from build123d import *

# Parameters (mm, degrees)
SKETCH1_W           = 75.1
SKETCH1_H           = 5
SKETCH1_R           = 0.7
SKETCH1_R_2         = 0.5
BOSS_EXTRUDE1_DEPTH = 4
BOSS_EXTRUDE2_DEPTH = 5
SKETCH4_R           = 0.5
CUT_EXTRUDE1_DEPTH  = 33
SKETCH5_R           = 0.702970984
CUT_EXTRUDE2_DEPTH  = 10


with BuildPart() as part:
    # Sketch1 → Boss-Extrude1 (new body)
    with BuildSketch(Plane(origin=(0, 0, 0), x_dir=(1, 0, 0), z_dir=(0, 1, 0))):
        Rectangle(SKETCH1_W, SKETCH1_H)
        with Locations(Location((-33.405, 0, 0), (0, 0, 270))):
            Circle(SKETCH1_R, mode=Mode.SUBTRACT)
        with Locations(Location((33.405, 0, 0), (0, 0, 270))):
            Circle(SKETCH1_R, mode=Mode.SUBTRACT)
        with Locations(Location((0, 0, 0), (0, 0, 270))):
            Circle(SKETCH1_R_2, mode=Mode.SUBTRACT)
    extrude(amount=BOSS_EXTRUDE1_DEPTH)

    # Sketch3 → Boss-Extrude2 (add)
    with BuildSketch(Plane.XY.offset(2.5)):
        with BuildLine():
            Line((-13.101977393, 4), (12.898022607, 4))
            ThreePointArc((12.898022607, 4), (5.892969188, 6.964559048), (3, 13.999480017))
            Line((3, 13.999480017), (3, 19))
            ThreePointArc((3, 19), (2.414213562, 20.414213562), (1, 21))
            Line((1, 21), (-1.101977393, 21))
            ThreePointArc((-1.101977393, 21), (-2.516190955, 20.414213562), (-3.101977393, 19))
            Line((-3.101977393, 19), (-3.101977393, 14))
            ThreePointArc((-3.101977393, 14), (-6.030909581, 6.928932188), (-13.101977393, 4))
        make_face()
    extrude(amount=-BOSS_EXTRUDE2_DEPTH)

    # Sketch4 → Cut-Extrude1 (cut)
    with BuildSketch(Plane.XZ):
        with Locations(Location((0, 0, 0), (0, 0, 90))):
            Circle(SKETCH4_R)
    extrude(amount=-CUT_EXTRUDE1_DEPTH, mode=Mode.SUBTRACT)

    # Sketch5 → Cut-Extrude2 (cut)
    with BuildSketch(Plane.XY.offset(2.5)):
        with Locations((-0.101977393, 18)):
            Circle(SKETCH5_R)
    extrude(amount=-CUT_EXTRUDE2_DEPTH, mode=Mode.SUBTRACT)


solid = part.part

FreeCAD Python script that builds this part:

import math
import FreeCAD as App
import Part
import Sketcher


def add_polygon(sketch, points):
    """Adds a closed chain of lines whose ends are joined by coincident constraints."""
    first, n = sketch.GeometryCount, len(points)
    for a, b in zip(points, points[1:] + points[:1]):
        sketch.addGeometry(Part.LineSegment(App.Vector(*a, 0), App.Vector(*b, 0)), False)
    for i in range(n):
        sketch.addConstraint(Sketcher.Constraint("Coincident", first + i, 2, first + (i + 1) % n, 1))

doc = App.newDocument("Part")
body = doc.addObject("PartDesign::Body", "Body")

# Sketch on XZ plane
sketch1 = doc.addObject("Sketcher::SketchObject", "Sketch")
body.addObject(sketch1)
sketch1.AttachmentSupport = (doc.XZ_Plane, [""])
sketch1.MapMode = "FlatFace"
add_polygon(sketch1, [(-37.5, -2.5), (-37.5, 2.5), (37.5, 2.5), (37.5, -2.5)])  # lines 0-3
sketch1.addGeometry(Part.Circle(App.Vector(-33.4, 0, 0), App.Vector(0, 0, 1), 0.7), False)  # 4
sketch1.addGeometry(Part.Circle(App.Vector(0, 0, 0), App.Vector(0, 0, 1), 0.5), False)  # 5
sketch1.addGeometry(Part.Circle(App.Vector(33.4, 0, 0), App.Vector(0, 0, 1), 0.7), False)  # 6
sketch1.addConstraint([
    Sketcher.Constraint("Vertical", 0),
    Sketcher.Constraint("Horizontal", 1),
    Sketcher.Constraint("Vertical", 2),
    Sketcher.Constraint("Horizontal", 3),
    Sketcher.Constraint("Coincident", 5, 3, -1, 1),
    Sketcher.Constraint("Equal", 4, 6),
    Sketcher.Constraint("Symmetric", 4, 3, 6, 3, -1, 1),
    Sketcher.Constraint("Symmetric", 0, 2, 2, 2, -1, 1),
    Sketcher.Constraint("PointOnObject", 4, 3, -1),
    Sketcher.Constraint("Diameter", 5, 1.0),
    Sketcher.Constraint("Diameter", 4, 1.4),
    Sketcher.Constraint("DistanceY", 0, 1, 0, 2, 5.0),
    Sketcher.Constraint("DistanceX", 1, 1, 1, 2, 75.1),
    Sketcher.Constraint("DistanceX", 4, 3, 6, 3, 66.81),
])
pad1 = doc.addObject("PartDesign::Pad", "Pad")
body.addObject(pad1)
pad1.Profile = sketch1
pad1.Length = 4
pad1.Reversed = True

# Sketch on XY plane
sketch2 = doc.addObject("Sketcher::SketchObject", "Sketch001")
body.addObject(sketch2)
sketch2.AttachmentSupport = (doc.XY_Plane, [""])
sketch2.MapMode = "FlatFace"
sketch2.AttachmentOffset = App.Placement(App.Vector(0, 0, 2.5), App.Rotation())
sketch2.addGeometry([
    Part.LineSegment(App.Vector(-13.1, 4, 0), App.Vector(12.9, 4, 0)),  # 0
    Part.ArcOfCircle(Part.Circle(App.Vector(13, 14, 0), App.Vector(0, 0, 1), 10), math.radians(180), math.radians(269)),  # 1
    Part.LineSegment(App.Vector(3, 14, 0), App.Vector(3, 19, 0)),  # 2
    Part.ArcOfCircle(Part.Circle(App.Vector(1, 19, 0), App.Vector(0, 0, 1), 2), math.radians(0), math.radians(90)),  # 3
    Part.LineSegment(App.Vector(1, 21, 0), App.Vector(-1.1, 21, 0)),  # 4
    Part.ArcOfCircle(Part.Circle(App.Vector(-1.1, 19, 0), App.Vector(0, 0, 1), 2), math.radians(90), math.radians(180)),  # 5
    Part.LineSegment(App.Vector(-3.1, 19, 0), App.Vector(-3.1, 14, 0)),  # 6
    Part.ArcOfCircle(Part.Circle(App.Vector(-13.1, 14, 0), App.Vector(0, 0, 1), 10), math.radians(-90), math.radians(0)),  # 7
], False)
sketch2.addConstraint([
    Sketcher.Constraint("Coincident", 0, 2, 1, 2),
    Sketcher.Constraint("Tangent", 1, 1, 2, 1),
    Sketcher.Constraint("Tangent", 2, 2, 3, 1),
    Sketcher.Constraint("Tangent", 3, 2, 4, 1),
    Sketcher.Constraint("Tangent", 4, 2, 5, 1),
    Sketcher.Constraint("Tangent", 5, 2, 6, 1),
    Sketcher.Constraint("Tangent", 6, 2, 7, 2),
    Sketcher.Constraint("Tangent", 7, 1, 0, 1),
    Sketcher.Constraint("Horizontal", 0),
    Sketcher.Constraint("Vertical", 2),
    Sketcher.Constraint("Horizontal", 4),
    Sketcher.Constraint("Vertical", 6),
    Sketcher.Constraint("Equal", 3, 5),
    Sketcher.Constraint("Equal", 1, 7),
    Sketcher.Constraint("Radius", 1, 10.0),
    Sketcher.Constraint("Radius", 3, 2.0),
    Sketcher.Constraint("DistanceX", 0, 1, 0, 2, 26.0),
    Sketcher.Constraint("DistanceY", 6, 2, 6, 1, 5.0),
    Sketcher.Constraint("DistanceX", -1, 1, 1, 3, 13.0),
    Sketcher.Constraint("DistanceY", -1, 1, 3, 3, 19.0),
    Sketcher.Constraint("DistanceY", 2, 1, 2, 2, 5.00052),
])
pad2 = doc.addObject("PartDesign::Pad", "Pad001")
body.addObject(pad2)
pad2.Profile = sketch2
pad2.Length = 5
pad2.Reversed = True

# Sketch on XZ plane
sketch3 = doc.addObject("Sketcher::SketchObject", "Sketch002")
body.addObject(sketch3)
sketch3.AttachmentSupport = (doc.XZ_Plane, [""])
sketch3.MapMode = "FlatFace"
sketch3.addGeometry(Part.Circle(App.Vector(0, 0, 0), App.Vector(0, 0, 1), 0.5), False)
sketch3.addConstraint([
    Sketcher.Constraint("Coincident", 0, 3, -1, 1),
    Sketcher.Constraint("Diameter", 0, 1.0),
])
pocket1 = doc.addObject("PartDesign::Pocket", "Pocket")
body.addObject(pocket1)
pocket1.Profile = sketch3
pocket1.Length = 33

# Sketch on XY plane
sketch4 = doc.addObject("Sketcher::SketchObject", "Sketch003")
body.addObject(sketch4)
sketch4.AttachmentSupport = (doc.XY_Plane, [""])
sketch4.MapMode = "FlatFace"
sketch4.AttachmentOffset = App.Placement(App.Vector(0, 0, 2.5), App.Rotation())
sketch4.addGeometry(Part.Circle(App.Vector(-0.1, 18, 0), App.Vector(0, 0, 1), 0.7), False)
sketch4.addConstraint([
    Sketcher.Constraint("DistanceY", -1, 1, 0, 3, 18.0),
    Sketcher.Constraint("Diameter", 0, 1.405942),
    Sketcher.Constraint("DistanceX", 0, 3, -1, 1, 0.101977),
])
pocket2 = doc.addObject("PartDesign::Pocket", "Pocket001")
body.addObject(pocket2)
pocket2.Profile = sketch4
pocket2.Length = 10

doc.recompute()
